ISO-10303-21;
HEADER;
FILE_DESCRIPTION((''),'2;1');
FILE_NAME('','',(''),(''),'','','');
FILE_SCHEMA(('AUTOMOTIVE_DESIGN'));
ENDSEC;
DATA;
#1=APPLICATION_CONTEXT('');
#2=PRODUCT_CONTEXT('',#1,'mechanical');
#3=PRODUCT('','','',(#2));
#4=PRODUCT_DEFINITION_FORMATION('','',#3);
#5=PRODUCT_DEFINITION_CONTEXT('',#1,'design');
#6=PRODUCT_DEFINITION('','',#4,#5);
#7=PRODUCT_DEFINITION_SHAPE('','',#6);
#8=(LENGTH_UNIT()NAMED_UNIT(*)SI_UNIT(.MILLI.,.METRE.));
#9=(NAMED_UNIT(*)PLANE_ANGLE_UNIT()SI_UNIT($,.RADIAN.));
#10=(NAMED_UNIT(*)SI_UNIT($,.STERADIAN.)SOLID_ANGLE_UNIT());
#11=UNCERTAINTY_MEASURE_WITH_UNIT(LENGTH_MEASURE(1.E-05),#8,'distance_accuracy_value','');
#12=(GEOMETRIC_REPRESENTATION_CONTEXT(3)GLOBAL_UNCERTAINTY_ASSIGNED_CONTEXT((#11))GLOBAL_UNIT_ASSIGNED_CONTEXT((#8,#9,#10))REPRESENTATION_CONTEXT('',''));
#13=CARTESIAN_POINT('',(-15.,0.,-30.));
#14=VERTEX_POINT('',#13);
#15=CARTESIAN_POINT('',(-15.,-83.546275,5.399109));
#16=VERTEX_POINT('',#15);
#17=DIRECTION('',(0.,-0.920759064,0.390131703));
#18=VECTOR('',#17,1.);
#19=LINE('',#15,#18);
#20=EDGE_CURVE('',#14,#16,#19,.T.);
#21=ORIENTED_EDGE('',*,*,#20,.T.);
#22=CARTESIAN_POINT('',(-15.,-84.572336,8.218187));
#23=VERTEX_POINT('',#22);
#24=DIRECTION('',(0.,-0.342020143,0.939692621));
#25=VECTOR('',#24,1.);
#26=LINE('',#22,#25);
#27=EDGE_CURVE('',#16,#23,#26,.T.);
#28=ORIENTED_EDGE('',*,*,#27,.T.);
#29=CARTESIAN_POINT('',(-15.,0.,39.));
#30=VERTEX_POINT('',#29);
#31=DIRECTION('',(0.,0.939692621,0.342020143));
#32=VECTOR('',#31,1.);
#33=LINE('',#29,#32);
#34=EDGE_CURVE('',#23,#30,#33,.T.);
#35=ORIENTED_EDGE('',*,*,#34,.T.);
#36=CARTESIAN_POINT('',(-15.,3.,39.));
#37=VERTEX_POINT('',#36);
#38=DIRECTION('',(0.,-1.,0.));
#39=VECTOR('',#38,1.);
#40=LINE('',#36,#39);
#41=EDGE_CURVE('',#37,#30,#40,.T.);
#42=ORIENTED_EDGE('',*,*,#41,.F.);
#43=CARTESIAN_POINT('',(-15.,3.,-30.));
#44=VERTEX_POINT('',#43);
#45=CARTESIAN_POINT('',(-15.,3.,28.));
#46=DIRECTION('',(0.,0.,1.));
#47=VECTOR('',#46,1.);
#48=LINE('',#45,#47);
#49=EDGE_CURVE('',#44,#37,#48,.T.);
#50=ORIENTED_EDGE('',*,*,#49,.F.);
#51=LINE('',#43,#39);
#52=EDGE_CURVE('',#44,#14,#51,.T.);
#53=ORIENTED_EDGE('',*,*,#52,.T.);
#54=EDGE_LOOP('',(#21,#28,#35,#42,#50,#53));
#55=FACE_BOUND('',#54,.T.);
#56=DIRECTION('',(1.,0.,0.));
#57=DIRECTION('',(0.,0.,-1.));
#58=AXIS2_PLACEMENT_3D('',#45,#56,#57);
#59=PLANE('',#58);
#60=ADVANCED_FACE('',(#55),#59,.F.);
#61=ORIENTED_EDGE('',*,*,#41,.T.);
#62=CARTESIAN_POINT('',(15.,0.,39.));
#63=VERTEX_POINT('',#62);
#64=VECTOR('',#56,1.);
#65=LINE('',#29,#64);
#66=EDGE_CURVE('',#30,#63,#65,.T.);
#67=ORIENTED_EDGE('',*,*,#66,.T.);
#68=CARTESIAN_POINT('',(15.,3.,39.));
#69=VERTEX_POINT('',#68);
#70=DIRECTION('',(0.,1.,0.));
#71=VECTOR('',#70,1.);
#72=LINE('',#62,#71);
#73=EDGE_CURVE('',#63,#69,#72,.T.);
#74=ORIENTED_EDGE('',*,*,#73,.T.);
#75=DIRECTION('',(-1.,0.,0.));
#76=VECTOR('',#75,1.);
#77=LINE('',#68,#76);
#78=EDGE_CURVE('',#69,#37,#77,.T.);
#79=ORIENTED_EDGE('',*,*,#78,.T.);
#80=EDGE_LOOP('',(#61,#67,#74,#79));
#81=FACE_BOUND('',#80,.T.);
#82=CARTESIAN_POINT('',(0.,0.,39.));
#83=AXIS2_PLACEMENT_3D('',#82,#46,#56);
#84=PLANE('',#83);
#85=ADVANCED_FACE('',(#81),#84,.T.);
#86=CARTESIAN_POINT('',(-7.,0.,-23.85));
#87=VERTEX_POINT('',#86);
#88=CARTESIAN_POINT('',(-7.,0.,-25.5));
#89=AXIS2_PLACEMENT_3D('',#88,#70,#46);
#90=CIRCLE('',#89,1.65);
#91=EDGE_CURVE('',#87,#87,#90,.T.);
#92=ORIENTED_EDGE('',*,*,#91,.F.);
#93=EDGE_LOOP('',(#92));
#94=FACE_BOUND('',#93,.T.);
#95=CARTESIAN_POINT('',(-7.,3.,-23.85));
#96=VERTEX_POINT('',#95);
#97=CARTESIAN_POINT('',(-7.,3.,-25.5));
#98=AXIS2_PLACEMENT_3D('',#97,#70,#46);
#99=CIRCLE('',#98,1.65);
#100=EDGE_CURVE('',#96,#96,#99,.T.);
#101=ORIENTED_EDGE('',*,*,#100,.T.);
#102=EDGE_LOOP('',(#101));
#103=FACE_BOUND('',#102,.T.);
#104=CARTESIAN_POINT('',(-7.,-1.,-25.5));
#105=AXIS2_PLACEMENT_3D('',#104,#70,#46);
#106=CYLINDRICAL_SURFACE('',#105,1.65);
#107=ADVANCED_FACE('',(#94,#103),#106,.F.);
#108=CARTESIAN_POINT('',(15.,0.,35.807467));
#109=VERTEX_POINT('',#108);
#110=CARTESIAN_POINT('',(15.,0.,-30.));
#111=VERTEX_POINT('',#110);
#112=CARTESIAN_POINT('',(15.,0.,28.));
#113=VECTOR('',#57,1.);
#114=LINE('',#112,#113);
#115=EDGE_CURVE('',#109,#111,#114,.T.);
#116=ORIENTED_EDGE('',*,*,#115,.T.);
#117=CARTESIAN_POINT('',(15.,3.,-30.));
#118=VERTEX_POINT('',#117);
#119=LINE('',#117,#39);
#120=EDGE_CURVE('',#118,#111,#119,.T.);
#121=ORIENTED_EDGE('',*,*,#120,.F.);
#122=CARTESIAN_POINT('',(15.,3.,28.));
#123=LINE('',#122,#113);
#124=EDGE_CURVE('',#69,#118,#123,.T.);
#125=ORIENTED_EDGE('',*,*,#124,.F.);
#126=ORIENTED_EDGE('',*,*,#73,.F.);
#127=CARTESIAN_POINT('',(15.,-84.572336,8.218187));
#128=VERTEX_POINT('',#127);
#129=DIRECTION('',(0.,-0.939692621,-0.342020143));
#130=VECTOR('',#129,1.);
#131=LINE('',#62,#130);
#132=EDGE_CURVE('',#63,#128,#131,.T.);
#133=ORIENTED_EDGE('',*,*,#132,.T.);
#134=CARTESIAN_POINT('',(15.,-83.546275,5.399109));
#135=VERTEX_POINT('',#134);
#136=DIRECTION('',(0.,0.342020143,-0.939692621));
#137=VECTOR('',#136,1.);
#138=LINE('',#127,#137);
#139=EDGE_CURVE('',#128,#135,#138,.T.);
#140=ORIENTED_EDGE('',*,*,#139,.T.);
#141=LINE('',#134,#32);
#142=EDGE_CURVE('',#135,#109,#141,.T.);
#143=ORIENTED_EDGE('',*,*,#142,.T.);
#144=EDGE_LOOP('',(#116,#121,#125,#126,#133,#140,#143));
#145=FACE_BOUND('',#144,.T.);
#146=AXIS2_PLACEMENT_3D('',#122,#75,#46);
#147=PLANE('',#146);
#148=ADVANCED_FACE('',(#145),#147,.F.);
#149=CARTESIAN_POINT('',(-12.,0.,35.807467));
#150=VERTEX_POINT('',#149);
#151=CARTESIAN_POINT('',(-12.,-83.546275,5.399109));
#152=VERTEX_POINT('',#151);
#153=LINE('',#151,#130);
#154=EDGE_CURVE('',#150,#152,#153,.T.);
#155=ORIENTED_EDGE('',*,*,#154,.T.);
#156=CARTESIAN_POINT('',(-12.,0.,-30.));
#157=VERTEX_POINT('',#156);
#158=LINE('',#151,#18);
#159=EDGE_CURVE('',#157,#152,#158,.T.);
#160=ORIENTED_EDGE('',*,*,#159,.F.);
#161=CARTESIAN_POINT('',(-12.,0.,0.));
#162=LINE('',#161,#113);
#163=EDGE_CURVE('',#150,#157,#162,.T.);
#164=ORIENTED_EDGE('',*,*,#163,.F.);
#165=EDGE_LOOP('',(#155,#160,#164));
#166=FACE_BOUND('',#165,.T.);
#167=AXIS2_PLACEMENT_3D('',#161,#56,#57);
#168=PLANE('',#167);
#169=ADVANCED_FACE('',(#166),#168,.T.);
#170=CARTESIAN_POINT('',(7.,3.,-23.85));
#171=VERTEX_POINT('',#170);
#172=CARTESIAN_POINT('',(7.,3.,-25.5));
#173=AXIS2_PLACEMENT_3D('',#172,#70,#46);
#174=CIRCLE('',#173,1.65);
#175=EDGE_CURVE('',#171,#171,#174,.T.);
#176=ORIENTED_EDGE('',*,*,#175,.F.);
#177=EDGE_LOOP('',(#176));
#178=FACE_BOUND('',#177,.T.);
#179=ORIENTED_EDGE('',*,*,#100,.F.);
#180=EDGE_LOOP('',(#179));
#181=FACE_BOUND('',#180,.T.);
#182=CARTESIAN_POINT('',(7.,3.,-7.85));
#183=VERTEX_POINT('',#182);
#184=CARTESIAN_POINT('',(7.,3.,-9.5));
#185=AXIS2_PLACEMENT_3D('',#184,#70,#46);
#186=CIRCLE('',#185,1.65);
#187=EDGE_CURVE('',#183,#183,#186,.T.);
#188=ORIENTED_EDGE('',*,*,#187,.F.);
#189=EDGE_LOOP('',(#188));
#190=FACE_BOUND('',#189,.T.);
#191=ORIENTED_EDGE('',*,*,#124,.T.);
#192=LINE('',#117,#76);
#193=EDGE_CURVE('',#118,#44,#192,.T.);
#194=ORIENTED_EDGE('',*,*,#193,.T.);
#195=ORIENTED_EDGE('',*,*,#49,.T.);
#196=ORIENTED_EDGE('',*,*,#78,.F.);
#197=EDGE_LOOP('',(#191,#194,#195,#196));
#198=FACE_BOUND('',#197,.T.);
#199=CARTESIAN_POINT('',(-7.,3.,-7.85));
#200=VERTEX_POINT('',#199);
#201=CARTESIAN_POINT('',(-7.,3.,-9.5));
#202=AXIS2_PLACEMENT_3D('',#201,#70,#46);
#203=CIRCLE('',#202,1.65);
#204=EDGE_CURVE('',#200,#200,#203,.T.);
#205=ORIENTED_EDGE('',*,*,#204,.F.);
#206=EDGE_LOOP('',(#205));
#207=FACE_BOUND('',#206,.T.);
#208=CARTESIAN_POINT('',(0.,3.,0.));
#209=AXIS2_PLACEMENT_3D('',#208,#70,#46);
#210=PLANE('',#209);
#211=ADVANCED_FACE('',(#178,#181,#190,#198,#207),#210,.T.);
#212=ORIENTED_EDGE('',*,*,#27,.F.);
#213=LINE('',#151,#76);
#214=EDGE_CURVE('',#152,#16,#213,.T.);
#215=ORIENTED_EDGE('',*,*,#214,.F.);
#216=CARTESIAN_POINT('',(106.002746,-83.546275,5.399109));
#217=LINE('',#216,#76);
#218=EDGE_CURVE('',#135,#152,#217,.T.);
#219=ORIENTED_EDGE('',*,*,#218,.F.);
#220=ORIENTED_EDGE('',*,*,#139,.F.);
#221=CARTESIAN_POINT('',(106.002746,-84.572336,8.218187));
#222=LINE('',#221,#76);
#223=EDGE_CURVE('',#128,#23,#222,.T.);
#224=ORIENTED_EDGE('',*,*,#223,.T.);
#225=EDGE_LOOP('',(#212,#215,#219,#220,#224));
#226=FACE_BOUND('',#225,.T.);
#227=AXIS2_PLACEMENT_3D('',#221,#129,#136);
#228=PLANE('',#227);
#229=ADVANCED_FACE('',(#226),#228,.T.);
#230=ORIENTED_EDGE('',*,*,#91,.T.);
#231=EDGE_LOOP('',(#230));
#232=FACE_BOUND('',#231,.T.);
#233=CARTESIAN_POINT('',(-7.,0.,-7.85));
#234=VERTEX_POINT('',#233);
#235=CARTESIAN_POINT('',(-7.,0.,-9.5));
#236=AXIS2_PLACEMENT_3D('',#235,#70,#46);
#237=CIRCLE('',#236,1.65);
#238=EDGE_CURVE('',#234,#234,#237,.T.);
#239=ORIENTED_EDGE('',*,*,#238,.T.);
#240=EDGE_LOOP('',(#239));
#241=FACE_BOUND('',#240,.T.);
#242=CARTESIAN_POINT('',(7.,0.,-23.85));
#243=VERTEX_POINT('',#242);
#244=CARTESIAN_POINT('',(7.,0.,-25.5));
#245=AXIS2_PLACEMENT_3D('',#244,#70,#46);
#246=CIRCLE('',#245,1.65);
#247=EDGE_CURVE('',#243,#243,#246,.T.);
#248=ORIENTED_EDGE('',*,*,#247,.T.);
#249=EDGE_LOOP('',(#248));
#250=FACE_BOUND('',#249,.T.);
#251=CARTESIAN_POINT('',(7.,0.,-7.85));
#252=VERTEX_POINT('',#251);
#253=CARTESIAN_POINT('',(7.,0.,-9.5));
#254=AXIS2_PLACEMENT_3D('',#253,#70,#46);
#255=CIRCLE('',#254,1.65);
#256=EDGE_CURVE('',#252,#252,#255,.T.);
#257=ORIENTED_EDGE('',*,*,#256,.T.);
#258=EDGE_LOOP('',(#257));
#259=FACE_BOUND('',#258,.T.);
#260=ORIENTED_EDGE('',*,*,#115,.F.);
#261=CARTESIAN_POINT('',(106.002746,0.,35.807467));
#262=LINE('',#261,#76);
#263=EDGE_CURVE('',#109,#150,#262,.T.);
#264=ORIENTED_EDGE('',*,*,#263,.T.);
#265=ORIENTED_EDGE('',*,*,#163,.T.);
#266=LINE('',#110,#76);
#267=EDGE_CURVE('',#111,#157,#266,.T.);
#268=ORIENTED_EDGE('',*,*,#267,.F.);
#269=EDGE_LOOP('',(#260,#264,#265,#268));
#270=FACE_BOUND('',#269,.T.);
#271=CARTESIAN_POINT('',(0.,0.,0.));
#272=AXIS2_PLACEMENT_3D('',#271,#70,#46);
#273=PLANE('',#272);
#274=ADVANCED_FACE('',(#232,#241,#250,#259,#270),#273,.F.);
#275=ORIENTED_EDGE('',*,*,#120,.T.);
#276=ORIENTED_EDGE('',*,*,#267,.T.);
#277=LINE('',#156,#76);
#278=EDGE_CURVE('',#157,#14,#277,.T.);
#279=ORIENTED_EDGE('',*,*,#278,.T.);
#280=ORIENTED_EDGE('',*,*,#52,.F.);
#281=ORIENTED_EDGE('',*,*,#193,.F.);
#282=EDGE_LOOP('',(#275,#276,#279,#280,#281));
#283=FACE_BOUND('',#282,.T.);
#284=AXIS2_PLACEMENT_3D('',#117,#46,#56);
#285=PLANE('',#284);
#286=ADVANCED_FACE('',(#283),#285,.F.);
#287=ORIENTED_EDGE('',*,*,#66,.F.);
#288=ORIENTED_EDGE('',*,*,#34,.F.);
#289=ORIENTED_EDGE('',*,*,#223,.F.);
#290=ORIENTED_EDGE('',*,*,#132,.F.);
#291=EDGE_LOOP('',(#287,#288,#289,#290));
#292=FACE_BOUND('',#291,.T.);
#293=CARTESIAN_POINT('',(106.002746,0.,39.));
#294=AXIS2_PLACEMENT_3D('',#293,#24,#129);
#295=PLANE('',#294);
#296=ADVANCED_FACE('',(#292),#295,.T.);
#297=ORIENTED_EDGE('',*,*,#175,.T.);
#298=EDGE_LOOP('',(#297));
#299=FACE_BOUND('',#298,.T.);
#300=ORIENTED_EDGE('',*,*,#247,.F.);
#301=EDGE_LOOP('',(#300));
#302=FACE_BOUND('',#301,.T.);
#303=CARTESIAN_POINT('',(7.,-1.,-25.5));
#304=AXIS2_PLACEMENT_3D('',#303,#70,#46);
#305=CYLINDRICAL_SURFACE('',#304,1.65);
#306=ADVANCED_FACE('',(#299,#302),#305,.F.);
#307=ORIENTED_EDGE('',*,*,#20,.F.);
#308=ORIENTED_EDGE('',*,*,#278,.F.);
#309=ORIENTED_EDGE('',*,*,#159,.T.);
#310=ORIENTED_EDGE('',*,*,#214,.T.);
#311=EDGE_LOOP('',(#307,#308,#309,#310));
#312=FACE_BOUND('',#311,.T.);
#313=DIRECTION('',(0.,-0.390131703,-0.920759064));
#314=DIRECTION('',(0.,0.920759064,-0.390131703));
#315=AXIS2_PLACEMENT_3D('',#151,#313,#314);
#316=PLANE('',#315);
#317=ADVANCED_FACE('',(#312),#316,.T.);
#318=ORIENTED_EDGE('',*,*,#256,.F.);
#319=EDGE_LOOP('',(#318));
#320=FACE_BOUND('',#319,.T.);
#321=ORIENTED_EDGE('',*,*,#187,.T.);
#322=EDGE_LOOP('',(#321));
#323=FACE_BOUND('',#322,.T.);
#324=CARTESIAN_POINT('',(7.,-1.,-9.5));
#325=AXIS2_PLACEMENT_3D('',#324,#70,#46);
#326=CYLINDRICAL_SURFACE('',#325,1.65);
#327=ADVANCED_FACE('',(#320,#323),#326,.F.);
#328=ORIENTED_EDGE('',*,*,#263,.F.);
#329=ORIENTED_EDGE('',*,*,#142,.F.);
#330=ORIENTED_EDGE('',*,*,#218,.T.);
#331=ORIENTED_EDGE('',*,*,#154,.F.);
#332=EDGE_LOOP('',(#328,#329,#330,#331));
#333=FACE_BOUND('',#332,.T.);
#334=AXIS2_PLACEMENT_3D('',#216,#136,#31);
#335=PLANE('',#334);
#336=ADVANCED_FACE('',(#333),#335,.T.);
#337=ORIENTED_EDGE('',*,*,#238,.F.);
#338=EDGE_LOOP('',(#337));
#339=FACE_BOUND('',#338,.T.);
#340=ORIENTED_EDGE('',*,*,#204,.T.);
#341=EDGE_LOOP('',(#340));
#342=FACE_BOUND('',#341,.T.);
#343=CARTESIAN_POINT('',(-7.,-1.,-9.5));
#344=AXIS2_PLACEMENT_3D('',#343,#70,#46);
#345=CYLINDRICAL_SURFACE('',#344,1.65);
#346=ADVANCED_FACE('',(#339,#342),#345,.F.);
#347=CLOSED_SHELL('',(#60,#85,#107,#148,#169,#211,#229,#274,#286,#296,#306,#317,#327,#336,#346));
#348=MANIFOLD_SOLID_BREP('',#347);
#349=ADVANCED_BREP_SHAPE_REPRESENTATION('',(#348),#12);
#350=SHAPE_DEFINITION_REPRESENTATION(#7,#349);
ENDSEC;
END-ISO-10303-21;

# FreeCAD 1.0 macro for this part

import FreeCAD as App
import Part
import Sketcher

V = App.Vector
Q = App.Units.Quantity


def add_polygon(sketch, points):
    """Adds a closed chain of lines whose ends are joined by coincident constraints."""
    first, n = sketch.GeometryCount, len(points)
    for a, b in zip(points, points[1:] + points[:1]):
        sketch.addGeometry(Part.LineSegment(App.Vector(*a, 0), App.Vector(*b, 0)), False)
    for i in range(n):
        sketch.addConstraint(Sketcher.Constraint("Coincident", first + i, 2, first + (i + 1) % n, 1))

doc = App.newDocument("Part")
body = doc.addObject("PartDesign::Body", "Body")

# Sketch on XZ plane
sketch1 = body.newObject("Sketcher::SketchObject", "Sketch")
sketch1.AttachmentSupport = (doc.getObject("XZ_Plane"), [""])
sketch1.MapMode = "FlatFace"
add_polygon(sketch1, [(15, -30), (-15, -30), (-15, 31), (15, 31)])  # lines 0-3
sketch1.addConstraint([
    Sketcher.Constraint("Horizontal", 0),
    Sketcher.Constraint("Vertical", 1),
    Sketcher.Constraint("Horizontal", 2),
    Sketcher.Constraint("Vertical", 3),
    Sketcher.Constraint("DistanceX", 0, 2, 0, 1, 30.0),
    Sketcher.Constraint("DistanceY", 1, 1, 1, 2, 61.0),
    Sketcher.Constraint("DistanceX", 0, 2, -1, 1, 15.0),
    Sketcher.Constraint("DistanceY", 0, 2, -1, 1, 30.0),
])
pad1 = body.newObject("PartDesign::Pad", "Pad")
pad1.Profile = sketch1
pad1.Length = 3
pad1.Reversed = True

# Sketch on XZ plane
sketch2 = body.newObject("Sketcher::SketchObject", "Sketch001")
sketch2.AttachmentSupport = (doc.getObject("XZ_Plane"), [""])
sketch2.MapMode = "FlatFace"
sketch2.AttachmentOffset = App.Placement(V(0, 0, -3), App.Rotation())
sketch2.addGeometry([
    Part.Circle(V(-7, -25.5, 0), V(0, 0, 1), 1.65),
    Part.Circle(V(7, -25.5, 0), V(0, 0, 1), 1.65),
    Part.Circle(V(-7, -9.5, 0), V(0, 0, 1), 1.65),
    Part.Circle(V(7, -9.5, 0), V(0, 0, 1), 1.65),
], False)
sketch2.addConstraint([
    Sketcher.Constraint("Equal", 0, 1),
    Sketcher.Constraint("Equal", 1, 2),
    Sketcher.Constraint("Equal", 2, 3),
    Sketcher.Constraint("Symmetric", 0, 3, 1, 3, -2),
    Sketcher.Constraint("Symmetric", 2, 3, 3, 3, -2),
    Sketcher.Constraint("Vertical", 0, 3, 2, 3),
    Sketcher.Constraint("Diameter", 0, 3.3),
    Sketcher.Constraint("DistanceX", 0, 3, -1, 1, 7.0),
    Sketcher.Constraint("DistanceY", 0, 3, 2, 3, 16.0),
    Sketcher.Constraint("DistanceY", 0, 3, -1, 1, 25.5),
])
pocket1 = body.newObject("PartDesign::Pocket", "Pocket")
pocket1.Profile = sketch2
pocket1.Length = 4
pocket1.Reversed = True

# Sketch on XY plane
sketch3 = body.newObject("Sketcher::SketchObject", "Sketch002")
sketch3.AttachmentSupport = (doc.getObject("XY_Plane"), [""])
sketch3.MapMode = "FlatFace"
sketch3.AttachmentOffset = App.Placement(V(0, 0, 31), App.Rotation())
add_polygon(sketch3, [(-15, 3), (-15, 0), (15, 0), (15, 3)])  # lines 0-3
sketch3.addConstraint([
    Sketcher.Constraint("Vertical", 0),
    Sketcher.Constraint("Horizontal", 1),
    Sketcher.Constraint("Vertical", 2),
    Sketcher.Constraint("Horizontal", 3),
    Sketcher.Constraint("Symmetric", 0, 2, 1, 2, -1, 1),
    Sketcher.Constraint("DistanceX", 1, 1, 1, 2, 30.0),
    Sketcher.Constraint("DistanceY", 0, 2, 0, 1, 3.0),
])
pad2 = body.newObject("PartDesign::Pad", "Pad001")
pad2.Profile = sketch3
pad2.Length = 8

# Sketch on YZ plane
sketch4 = body.newObject("Sketcher::SketchObject", "Sketch003")
sketch4.AttachmentSupport = (doc.getObject("YZ_Plane"), [""])
sketch4.MapMode = "FlatFace"
sketch4.AttachmentOffset = App.Placement(V(0, 0, -15), App.Rotation())
add_polygon(sketch4, [(-84.572336, 8.218187), (0, 39), (0, 35.807467), (-83.546275, 5.399109)])  # lines 0-3
sketch4.addConstraint([
    Sketcher.Constraint("Vertical", 1),
    Sketcher.Constraint("PointOnObject", 0, 2, -2),
    Sketcher.Constraint("Parallel", 0, 2),
    Sketcher.Constraint("Perpendicular", 2, 3),
    Sketcher.Constraint("Angle", 0, Q("20 deg")),
    Sketcher.Constraint("Distance", 0, 90.0),
    Sketcher.Constraint("Distance", 3, 3.0),
    Sketcher.Constraint("DistanceY", -1, 1, 0, 2, 39.0),
])
pad3 = body.newObject("PartDesign::Pad", "Pad002")
pad3.Profile = sketch4
pad3.Length = 30

# Sketch on YZ plane
sketch5 = body.newObject("Sketcher::SketchObject", "Sketch004")
sketch5.AttachmentSupport = (doc.getObject("YZ_Plane"), [""])
sketch5.MapMode = "FlatFace"
sketch5.AttachmentOffset = App.Placement(V(0, 0, -15), App.Rotation())
add_polygon(sketch5, [(0, -30), (-83.546275, 5.399109), (-84.572336, 8.218187), (0, 39), (3, 39), (3, -30)])  # lines 0-5
sketch5.addConstraint([
    Sketcher.Constraint("Horizontal", 3),
    Sketcher.Constraint("Vertical", 4),
    Sketcher.Constraint("Horizontal", 5),
    Sketcher.Constraint("PointOnObject", 2, 2, -2),
    Sketcher.Constraint("PointOnObject", 5, 2, -2),
    Sketcher.Constraint("Perpendicular", 1, 2),
    Sketcher.Constraint("DistanceX", 3, 1, 3, 2, 3.0),
    Sketcher.Constraint("DistanceY", 4, 2, 4, 1, 69.0),
    Sketcher.Constraint("Angle", 1, Q("110 deg")),
    Sketcher.Constraint("Distance", 1, 3.0),
    Sketcher.Constraint("Distance", 2, 90.0),
    Sketcher.Constraint("DistanceY", -1, 1, 2, 2, 39.0),
])
pad4 = body.newObject("PartDesign::Pad", "Pad003")
pad4.Profile = sketch5
pad4.Length = 3

doc.recompute()
